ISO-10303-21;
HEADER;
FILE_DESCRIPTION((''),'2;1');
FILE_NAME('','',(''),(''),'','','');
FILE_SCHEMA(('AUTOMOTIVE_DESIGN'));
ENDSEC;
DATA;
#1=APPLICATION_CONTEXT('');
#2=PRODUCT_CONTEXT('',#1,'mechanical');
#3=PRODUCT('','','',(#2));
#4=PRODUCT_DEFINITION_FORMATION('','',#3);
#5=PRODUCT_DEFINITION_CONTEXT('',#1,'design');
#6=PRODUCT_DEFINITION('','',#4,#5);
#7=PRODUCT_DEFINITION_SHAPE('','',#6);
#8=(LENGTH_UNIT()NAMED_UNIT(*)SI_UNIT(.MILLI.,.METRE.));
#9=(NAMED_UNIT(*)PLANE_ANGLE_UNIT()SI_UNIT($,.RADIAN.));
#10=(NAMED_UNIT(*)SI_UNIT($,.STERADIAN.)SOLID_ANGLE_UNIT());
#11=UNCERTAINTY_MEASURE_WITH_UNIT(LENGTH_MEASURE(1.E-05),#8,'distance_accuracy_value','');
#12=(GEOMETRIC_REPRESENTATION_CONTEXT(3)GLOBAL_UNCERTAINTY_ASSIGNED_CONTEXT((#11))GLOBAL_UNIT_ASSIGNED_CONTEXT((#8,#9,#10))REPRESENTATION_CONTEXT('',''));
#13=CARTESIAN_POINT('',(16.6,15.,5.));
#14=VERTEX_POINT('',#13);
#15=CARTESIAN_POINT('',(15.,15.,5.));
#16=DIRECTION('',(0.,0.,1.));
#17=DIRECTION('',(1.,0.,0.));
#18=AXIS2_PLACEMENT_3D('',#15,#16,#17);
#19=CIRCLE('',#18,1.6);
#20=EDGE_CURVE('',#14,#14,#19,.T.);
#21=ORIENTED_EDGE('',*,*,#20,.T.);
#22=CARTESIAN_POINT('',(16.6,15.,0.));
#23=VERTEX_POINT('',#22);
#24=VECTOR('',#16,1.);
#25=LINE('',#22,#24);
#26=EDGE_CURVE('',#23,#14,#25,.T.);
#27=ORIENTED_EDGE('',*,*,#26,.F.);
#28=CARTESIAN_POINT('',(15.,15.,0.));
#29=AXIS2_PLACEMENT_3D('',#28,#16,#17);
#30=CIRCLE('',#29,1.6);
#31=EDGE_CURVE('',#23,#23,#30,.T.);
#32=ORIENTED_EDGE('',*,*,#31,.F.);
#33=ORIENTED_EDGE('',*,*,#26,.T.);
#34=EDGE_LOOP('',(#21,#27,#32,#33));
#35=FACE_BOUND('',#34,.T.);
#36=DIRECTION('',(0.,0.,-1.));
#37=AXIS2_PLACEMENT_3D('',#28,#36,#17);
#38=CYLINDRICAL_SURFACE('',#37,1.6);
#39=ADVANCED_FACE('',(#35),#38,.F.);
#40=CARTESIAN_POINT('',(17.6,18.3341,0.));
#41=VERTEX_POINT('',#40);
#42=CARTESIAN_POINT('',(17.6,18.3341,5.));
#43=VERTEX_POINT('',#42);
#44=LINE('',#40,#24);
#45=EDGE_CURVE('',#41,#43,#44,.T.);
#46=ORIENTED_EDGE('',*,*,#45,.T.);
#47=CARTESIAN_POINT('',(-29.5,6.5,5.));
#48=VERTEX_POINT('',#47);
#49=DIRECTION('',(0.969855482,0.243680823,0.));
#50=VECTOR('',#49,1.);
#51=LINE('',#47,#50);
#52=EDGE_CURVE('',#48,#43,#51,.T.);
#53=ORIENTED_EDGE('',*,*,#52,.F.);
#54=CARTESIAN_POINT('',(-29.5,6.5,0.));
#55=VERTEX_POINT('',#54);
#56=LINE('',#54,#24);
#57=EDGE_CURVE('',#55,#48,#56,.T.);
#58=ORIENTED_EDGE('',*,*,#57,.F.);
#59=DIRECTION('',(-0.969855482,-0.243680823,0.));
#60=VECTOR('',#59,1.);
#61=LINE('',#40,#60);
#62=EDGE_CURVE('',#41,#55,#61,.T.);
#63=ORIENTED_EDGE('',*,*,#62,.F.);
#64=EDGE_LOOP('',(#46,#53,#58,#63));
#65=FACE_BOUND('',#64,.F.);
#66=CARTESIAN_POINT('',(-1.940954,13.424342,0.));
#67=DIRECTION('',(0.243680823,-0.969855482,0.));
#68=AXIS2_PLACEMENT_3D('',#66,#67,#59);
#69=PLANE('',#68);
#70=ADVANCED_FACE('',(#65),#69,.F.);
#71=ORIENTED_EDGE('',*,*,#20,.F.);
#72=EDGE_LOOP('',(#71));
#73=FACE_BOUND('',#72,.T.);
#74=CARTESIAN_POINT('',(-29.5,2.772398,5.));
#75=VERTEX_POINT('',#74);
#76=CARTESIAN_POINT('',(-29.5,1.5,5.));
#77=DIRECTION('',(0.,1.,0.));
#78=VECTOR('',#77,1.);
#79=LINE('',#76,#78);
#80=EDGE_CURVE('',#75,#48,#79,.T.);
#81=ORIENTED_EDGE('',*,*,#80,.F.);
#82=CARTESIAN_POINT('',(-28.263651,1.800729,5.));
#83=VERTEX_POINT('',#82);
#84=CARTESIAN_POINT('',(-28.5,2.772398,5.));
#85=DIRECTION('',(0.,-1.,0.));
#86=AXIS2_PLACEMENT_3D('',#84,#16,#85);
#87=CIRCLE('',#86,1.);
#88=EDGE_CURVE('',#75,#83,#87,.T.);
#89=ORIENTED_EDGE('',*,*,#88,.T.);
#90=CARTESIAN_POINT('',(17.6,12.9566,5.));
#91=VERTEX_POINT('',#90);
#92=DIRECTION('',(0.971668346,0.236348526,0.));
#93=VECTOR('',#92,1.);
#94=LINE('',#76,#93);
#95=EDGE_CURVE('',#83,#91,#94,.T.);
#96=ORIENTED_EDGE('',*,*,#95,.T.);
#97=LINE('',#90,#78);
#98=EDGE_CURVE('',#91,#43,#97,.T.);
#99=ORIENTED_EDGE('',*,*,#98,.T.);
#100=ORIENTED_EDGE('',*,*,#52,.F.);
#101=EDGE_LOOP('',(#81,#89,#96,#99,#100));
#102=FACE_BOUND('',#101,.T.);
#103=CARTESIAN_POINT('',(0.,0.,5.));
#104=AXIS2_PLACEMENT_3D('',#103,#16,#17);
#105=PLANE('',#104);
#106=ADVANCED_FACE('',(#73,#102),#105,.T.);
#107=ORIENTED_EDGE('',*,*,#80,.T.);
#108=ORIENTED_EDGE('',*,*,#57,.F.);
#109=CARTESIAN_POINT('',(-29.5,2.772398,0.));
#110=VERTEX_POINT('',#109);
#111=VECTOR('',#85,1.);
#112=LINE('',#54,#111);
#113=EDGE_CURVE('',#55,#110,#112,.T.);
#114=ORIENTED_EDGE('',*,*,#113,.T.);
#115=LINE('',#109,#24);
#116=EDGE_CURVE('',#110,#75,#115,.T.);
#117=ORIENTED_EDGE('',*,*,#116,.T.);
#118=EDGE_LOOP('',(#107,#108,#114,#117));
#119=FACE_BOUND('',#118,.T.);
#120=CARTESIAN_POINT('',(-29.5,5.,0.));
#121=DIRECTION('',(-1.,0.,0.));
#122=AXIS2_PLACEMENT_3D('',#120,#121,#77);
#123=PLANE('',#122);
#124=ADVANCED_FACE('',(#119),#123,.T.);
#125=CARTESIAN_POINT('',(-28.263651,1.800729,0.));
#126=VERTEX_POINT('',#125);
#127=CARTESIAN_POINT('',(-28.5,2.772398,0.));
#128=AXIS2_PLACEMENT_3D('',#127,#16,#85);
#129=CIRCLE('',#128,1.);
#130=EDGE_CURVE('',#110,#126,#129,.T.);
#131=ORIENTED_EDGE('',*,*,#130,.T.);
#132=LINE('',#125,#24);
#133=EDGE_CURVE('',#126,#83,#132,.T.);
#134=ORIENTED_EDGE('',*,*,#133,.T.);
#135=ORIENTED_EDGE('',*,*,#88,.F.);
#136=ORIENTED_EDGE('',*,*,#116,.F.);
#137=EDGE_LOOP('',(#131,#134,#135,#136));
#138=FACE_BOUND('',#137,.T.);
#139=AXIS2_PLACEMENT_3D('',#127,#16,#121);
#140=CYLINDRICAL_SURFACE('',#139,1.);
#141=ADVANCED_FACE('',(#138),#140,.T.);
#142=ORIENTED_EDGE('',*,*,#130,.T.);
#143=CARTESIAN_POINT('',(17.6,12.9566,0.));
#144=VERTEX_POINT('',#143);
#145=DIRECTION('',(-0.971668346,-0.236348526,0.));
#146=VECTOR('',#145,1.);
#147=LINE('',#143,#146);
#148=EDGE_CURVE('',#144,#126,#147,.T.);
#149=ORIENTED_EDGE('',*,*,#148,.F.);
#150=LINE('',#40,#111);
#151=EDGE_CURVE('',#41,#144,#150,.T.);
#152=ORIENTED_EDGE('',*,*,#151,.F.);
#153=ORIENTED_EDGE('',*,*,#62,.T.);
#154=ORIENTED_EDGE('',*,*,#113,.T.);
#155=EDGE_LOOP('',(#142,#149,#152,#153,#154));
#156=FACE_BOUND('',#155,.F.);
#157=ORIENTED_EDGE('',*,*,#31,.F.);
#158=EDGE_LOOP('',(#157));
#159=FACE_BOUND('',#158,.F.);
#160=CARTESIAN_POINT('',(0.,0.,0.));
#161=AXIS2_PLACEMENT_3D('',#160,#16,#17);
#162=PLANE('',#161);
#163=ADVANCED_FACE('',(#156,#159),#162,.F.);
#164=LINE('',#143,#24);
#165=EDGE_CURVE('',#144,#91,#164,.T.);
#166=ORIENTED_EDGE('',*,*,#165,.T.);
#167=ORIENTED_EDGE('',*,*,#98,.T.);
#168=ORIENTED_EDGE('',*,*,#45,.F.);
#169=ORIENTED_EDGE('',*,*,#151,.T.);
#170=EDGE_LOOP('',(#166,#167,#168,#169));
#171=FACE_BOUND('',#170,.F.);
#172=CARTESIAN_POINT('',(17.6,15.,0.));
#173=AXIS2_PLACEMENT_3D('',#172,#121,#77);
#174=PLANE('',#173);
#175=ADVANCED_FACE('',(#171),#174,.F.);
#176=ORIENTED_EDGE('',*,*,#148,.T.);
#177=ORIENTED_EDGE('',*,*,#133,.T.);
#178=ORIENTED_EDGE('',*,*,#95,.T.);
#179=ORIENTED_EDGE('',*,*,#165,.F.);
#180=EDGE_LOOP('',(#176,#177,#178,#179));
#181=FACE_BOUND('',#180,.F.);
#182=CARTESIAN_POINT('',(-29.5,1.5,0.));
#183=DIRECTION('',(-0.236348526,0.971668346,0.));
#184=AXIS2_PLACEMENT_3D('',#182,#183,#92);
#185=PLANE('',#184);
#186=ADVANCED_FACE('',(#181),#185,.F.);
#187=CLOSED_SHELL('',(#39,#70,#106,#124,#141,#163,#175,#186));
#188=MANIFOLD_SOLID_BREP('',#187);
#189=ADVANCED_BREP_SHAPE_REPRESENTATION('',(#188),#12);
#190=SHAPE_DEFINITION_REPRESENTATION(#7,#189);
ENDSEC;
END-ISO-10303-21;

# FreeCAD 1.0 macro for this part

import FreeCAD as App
import Part
import Sketcher
from FreeCAD import Vector
Q = App.Units.Quantity


def edges_at(feature, points):
    """Names of the edges that pass closest to the given points."""
    edges = feature.Shape.Edges
    near = lambda p: min(range(len(edges)), key=lambda i: edges[i].distToShape(Part.Vertex(*p))[0])
    return sorted({f"Edge{near(p) + 1}" for p in points})


def add_polygon(sketch, points):
    """Adds a closed chain of lines whose ends are joined by coincident constraints."""
    first, n = sketch.GeometryCount, len(points)
    for a, b in zip(points, points[1:] + points[:1]):
        sketch.addGeometry(Part.LineSegment(App.Vector(*a, 0), App.Vector(*b, 0)), False)
    for i in range(n):
        sketch.addConstraint(Sketcher.Constraint("Coincident", first + i, 2, first + (i + 1) % n, 1))

doc = App.newDocument("Part")
params = doc.addObject("Spreadsheet::Sheet", "Params")
for row, (alias, value) in enumerate([
    ("sketch1_diameter", "3.2 mm"),
    ("sketch1_height", "5 mm"),
    ("pad1_length", "5 mm"),
    ("fillet_radius", "1 mm"),
], start=1):
    params.set(f"A{row}", alias)
    params.set(f"B{row}", "=" + value)
    params.setAlias(f"B{row}", alias)

body = doc.addObject("PartDesign::Body", "Body")

# Sketch on XY plane
sketch1 = body.newObject("Sketcher::SketchObject", "Sketch")
sketch1.AttachmentSupport = (doc.getObject("XY_Plane"), [""])
sketch1.MapMode = "FlatFace"
add_polygon(sketch1, [(-29.5, 6.5), (-29.5, 1.5), (17.6, 12.9566), (17.6, 18.3341)])  # lines 0-3
sketch1.addGeometry(Part.Circle(Vector(15, 15, 0), Vector(0, 0, 1), 1.6), False)  # 4
sketch1.addConstraint([
    Sketcher.Constraint("Vertical", 0),
    Sketcher.Constraint("Vertical", 2),
    Sketcher.Constraint("Diameter", 4, Q("3.2 mm")),
    Sketcher.Constraint("DistanceY", 0, 2, 0, 1, Q("5 mm")),
    Sketcher.Constraint("DistanceX", -1, 1, 4, 3, Q("15 mm")),
    Sketcher.Constraint("DistanceY", -1, 1, 4, 3, Q("15 mm")),
    Sketcher.Constraint("DistanceX", 0, 2, -1, 1, Q("29.5 mm")),
    Sketcher.Constraint("DistanceY", -1, 1, 0, 2, Q("1.5 mm")),
    Sketcher.Constraint("DistanceX", -1, 1, 1, 2, Q("17.6 mm")),
    Sketcher.Constraint("Angle", 1, Q("13.6711 deg")),
    Sketcher.Constraint("Distance", 3, Q("48.564 mm")),
])
sketch1.setExpression("Constraints[6]", "Params.sketch1_diameter")
sketch1.setExpression("Constraints[7]", "Params.sketch1_height")
pad1 = body.newObject("PartDesign::Pad", "Pad")
pad1.Profile = sketch1
pad1.setExpression("Length", "Params.pad1_length")
doc.recompute()

fillet = body.newObject("PartDesign::Fillet", "Fillet")
fillet.Base = (pad1, edges_at(pad1, [(-29.5, 1.5, 2.5)]))
fillet.setExpression("Radius", "Params.fillet_radius")

doc.recompute()
